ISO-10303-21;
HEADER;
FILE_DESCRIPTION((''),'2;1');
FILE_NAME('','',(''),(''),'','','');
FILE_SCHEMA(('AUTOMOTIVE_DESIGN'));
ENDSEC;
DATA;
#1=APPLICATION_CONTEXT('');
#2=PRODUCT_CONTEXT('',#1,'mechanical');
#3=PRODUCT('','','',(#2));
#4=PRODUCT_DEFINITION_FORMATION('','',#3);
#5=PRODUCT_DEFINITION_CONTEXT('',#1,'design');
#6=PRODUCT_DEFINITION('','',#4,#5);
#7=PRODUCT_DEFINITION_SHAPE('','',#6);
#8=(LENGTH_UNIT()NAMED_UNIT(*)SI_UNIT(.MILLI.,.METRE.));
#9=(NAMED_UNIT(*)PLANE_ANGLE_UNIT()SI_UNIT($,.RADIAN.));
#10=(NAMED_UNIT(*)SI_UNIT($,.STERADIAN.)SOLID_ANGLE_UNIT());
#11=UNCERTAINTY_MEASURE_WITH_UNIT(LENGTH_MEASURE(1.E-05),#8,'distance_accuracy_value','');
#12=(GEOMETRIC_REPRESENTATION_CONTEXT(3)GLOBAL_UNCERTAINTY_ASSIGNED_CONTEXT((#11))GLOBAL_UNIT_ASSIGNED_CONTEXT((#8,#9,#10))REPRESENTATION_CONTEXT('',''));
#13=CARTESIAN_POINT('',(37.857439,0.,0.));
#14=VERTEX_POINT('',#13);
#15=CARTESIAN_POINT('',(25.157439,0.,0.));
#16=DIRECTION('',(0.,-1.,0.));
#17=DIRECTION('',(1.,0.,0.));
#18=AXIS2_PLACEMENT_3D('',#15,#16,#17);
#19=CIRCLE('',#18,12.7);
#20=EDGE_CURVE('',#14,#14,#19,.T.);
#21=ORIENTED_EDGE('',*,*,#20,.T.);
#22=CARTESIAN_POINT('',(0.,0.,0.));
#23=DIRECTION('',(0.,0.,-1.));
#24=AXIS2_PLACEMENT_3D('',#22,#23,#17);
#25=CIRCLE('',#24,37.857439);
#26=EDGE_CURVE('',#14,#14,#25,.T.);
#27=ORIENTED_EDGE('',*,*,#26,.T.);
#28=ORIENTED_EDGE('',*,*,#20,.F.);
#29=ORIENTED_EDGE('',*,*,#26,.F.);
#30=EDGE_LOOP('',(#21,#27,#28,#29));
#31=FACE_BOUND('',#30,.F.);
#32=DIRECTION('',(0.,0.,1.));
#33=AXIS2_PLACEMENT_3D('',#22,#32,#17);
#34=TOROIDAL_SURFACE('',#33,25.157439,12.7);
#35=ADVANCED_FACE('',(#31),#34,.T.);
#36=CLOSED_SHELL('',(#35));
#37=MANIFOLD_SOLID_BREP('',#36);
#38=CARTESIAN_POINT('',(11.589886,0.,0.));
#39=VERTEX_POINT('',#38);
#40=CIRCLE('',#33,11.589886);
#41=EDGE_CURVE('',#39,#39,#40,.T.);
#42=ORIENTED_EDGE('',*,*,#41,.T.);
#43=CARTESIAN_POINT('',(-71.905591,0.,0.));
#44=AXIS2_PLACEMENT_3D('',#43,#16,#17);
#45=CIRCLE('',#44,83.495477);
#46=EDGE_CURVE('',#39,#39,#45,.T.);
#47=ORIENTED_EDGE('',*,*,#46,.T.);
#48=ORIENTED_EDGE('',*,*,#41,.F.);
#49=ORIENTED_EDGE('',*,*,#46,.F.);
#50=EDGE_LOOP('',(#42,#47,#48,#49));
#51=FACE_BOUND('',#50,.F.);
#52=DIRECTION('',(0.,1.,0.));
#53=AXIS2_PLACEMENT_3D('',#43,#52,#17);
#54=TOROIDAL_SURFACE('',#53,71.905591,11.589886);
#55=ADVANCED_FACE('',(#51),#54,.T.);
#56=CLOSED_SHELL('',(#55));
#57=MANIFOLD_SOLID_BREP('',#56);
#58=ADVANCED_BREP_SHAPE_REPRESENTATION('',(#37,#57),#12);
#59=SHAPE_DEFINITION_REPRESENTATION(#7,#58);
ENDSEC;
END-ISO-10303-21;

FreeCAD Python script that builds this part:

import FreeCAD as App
import Part
import Sketcher

V = App.Vector
Q = App.Units.Quantity

doc = App.newDocument("Part")
body = doc.addObject("PartDesign::Body", "Body")

sketch1 = body.newObject("Sketcher::SketchObject", "Sketch")
sketch1.AttachmentSupport = (doc.getObject("XZ_Plane"), [""])
sketch1.MapMode = "FlatFace"
sketch1.addGeometry(Part.Circle(V(25.157439, 0, 0), V(0, 0, 1), 12.7), False)
sketch1.addConstraint(Sketcher.Constraint("PointOnObject", 0, 3, -1))
sketch1.addConstraint(Sketcher.Constraint("Diameter", 0, Q("1 in")))
sketch1.addConstraint(Sketcher.Constraint("DistanceX", -1, 1, 0, 3, 25.157439))
revolution = body.newObject("PartDesign::Revolution", "Revolution")
revolution.Profile = sketch1
revolution.ReferenceAxis = (sketch1, ["V_Axis"])
revolution.Angle = 360
body2 = doc.addObject("PartDesign::Body", "Body001")

sketch2 = body2.newObject("Sketcher::SketchObject", "Sketch001")
sketch2.AttachmentSupport = (doc.getObject("XY_Plane001"), [""])
sketch2.MapMode = "FlatFace"
sketch2.addGeometry(Part.Circle(V(0, 0, 0), V(0, 0, 1), 11.589886), False)
sketch2.addGeometry(Part.LineSegment(V(-71.905591, 0, 0), V(-71.905591, -10, 0)), True)
sketch2.addConstraint(Sketcher.Constraint("Vertical", 1))
sketch2.addConstraint(Sketcher.Constraint("Coincident", 0, 3, -1, 1))
sketch2.addConstraint(Sketcher.Constraint("PointOnObject", 1, 1, -1))
sketch2.addConstraint(Sketcher.Constraint("Diameter", 0, 23.179772))
sketch2.addConstraint(Sketcher.Constraint("DistanceY", 1, 2, 1, 1, 10.0))
sketch2.addConstraint(Sketcher.Constraint("DistanceX", 1, 1, -1, 1, 71.905591))
revolution2 = body2.newObject("PartDesign::Revolution", "Revolution001")
revolution2.Profile = sketch2
revolution2.ReferenceAxis = (sketch2, ["Axis0"])
revolution2.Angle = 360

doc.recompute()
